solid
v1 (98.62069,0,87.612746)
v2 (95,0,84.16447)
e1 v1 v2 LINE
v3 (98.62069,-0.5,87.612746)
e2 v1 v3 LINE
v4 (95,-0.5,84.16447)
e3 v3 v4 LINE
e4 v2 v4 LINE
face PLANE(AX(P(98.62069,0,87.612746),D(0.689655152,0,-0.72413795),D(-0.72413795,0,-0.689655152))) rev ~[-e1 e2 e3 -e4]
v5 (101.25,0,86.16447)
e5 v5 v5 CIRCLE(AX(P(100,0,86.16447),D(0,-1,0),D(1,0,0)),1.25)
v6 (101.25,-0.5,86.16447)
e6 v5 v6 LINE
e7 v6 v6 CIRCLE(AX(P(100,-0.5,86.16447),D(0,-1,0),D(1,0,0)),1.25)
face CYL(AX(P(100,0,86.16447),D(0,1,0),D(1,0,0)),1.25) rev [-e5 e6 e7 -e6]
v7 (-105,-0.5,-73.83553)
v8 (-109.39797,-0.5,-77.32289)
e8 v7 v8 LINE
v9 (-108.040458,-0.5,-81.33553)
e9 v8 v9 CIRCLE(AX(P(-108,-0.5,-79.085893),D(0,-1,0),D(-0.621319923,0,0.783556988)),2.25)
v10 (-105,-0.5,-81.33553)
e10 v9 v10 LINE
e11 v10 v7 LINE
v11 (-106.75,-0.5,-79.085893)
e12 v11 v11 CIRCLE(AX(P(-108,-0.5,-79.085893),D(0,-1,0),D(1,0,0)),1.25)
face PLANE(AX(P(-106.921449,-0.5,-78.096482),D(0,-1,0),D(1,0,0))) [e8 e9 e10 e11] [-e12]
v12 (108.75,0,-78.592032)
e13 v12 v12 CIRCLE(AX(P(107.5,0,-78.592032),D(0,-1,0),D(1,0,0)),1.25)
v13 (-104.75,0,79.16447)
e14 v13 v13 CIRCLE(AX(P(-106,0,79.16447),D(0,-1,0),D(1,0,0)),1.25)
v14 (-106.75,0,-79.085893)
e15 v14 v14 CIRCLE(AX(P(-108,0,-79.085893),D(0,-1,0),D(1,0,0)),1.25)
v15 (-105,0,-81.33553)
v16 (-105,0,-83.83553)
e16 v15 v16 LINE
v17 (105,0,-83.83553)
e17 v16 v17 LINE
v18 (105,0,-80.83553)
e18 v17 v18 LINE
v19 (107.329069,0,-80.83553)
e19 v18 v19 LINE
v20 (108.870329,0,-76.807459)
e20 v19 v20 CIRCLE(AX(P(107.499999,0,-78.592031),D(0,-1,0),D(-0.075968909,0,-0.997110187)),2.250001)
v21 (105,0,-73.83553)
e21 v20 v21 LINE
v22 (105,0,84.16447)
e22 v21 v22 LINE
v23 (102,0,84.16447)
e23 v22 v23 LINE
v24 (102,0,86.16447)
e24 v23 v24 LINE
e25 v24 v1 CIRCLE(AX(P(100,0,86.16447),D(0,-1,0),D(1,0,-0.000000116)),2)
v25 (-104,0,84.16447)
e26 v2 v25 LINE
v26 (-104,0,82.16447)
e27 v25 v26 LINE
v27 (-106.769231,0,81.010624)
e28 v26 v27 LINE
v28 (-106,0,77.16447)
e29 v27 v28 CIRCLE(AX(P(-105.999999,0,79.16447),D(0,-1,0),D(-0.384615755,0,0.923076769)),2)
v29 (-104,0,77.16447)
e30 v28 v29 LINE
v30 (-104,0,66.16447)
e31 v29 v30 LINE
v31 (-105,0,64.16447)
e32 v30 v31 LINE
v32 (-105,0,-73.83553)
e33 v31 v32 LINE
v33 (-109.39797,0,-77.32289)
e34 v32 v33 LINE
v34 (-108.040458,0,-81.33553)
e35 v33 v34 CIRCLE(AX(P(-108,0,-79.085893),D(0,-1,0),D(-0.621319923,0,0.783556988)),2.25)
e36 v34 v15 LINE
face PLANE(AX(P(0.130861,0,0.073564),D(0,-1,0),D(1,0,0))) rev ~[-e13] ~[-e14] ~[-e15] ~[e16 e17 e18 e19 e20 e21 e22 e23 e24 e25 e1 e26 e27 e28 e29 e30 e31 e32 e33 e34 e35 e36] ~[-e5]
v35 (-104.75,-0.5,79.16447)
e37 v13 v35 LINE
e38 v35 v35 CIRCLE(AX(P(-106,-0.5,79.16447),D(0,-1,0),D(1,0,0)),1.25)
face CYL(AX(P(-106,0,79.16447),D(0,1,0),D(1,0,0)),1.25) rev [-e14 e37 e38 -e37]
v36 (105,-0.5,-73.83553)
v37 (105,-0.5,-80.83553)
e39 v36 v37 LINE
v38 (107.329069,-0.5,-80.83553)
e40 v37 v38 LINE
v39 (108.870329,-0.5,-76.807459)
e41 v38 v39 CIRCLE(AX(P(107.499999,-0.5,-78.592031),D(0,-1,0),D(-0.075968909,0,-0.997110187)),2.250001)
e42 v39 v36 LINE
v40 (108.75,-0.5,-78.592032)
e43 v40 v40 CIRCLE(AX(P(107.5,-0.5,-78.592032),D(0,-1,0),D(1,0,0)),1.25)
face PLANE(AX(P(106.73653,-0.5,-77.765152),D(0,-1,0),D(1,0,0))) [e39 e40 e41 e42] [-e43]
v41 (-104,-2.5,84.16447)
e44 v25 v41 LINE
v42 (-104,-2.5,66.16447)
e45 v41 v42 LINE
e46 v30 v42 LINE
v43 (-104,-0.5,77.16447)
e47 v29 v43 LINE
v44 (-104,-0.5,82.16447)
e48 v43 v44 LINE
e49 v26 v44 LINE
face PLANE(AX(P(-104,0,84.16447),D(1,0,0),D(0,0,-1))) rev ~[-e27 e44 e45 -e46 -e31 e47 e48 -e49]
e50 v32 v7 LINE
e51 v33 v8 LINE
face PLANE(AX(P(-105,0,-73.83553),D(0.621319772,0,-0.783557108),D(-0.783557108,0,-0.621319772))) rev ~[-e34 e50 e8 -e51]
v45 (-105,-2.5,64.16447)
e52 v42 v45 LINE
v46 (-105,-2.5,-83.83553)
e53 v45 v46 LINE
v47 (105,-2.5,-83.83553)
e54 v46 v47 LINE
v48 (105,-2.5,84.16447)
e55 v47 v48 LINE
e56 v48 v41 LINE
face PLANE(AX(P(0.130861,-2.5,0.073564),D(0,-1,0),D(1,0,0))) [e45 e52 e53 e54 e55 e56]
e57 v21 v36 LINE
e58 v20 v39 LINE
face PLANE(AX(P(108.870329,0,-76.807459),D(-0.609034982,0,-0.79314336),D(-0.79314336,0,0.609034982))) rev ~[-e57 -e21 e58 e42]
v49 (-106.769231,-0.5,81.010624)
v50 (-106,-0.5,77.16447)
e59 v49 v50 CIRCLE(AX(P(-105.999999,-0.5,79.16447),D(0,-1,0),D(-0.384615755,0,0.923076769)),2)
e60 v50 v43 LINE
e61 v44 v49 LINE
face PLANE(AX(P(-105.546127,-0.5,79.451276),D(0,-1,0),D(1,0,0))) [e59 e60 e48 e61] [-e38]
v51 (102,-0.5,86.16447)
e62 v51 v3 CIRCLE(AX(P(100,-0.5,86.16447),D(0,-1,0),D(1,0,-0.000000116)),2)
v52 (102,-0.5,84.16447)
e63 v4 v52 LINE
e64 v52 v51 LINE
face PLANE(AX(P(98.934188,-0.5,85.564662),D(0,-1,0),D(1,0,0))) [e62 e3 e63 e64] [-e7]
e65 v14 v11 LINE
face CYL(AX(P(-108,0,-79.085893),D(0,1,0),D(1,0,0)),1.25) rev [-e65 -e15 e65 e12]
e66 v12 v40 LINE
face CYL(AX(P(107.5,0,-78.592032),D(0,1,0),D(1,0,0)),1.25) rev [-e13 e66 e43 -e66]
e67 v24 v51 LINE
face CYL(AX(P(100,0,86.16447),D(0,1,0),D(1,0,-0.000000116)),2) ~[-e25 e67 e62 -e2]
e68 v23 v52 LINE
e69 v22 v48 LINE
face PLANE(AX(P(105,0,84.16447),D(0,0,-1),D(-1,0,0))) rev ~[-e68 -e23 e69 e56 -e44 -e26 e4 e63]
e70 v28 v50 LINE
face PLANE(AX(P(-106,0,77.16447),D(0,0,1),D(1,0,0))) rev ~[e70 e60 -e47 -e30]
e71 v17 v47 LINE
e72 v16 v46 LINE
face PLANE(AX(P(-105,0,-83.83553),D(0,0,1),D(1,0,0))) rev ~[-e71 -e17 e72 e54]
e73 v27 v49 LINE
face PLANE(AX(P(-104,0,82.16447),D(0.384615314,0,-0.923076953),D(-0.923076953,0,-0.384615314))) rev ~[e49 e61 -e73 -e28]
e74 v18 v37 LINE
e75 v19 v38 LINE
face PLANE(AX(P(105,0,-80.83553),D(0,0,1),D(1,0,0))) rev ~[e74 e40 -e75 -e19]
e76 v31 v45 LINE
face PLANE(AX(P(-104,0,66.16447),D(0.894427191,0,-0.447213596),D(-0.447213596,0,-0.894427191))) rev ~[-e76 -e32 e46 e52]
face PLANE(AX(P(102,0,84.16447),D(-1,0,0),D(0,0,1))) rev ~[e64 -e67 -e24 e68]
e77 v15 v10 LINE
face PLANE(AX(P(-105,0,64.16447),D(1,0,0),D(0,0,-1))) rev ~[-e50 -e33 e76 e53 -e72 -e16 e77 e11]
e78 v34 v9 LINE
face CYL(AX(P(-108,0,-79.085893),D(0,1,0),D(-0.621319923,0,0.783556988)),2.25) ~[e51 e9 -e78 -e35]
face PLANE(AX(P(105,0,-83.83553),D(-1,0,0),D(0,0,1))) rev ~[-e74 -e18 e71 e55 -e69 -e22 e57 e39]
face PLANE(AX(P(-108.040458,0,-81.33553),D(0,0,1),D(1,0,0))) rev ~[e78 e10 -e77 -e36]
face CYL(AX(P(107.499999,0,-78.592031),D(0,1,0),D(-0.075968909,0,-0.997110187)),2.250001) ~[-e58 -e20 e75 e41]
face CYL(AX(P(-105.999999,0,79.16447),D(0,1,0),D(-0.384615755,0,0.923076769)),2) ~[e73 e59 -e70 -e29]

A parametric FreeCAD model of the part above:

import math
import FreeCAD as App
import Part
import Sketcher
from FreeCAD import Vector

doc = App.newDocument("Part")
params = doc.addObject("Spreadsheet::Sheet", "Params")
for row, (alias, value) in enumerate([
    ("sketch1_width", "210 mm"),
    ("sketch1_width2", "209 mm"),
    ("sketch1_height", "168 mm"),
    ("sketch1_height2", "18 mm"),
    ("sketch1_height3", "148 mm"),
    ("pad1_length", "2.5 mm"),
    ("sketch2_radius", "2 mm"),
    ("sketch2_diameter", "2.5 mm"),
    ("sketch2_width", "7 mm"),
    ("sketch2_width2", "2 mm"),
    ("sketch2_height", "5 mm"),
    ("pad2_length", "0.5 mm"),
    ("sketch3_width", "200 mm"),
    ("sketch3_height", "151 mm"),
    ("pad3_length", "0.1 mm"),
], start=1):
    params.set(f"A{row}", alias)
    params.set(f"B{row}", "=" + value)
    params.setAlias(f"B{row}", alias)

body = doc.addObject("PartDesign::Body", "Body")

sketch1 = body.newObject("Sketcher::SketchObject", "Sketch")
sketch1.AttachmentSupport = (doc.getObject("XZ_Plane"), [""])
sketch1.MapMode = "FlatFace"
sketch1.addGeometry(Part.LineSegment(Vector(-105, -83.8, 0), Vector(105, -83.8, 0)), False)
sketch1.addGeometry(Part.LineSegment(Vector(105, -83.8, 0), Vector(105, 84.2, 0)), False)
sketch1.addGeometry(Part.LineSegment(Vector(105, 84.2, 0), Vector(-104, 84.2, 0)), False)
sketch1.addGeometry(Part.LineSegment(Vector(-104, 84.2, 0), Vector(-104, 66.2, 0)), False)
sketch1.addGeometry(Part.LineSegment(Vector(-104, 66.2, 0), Vector(-105, 64.2, 0)), False)
sketch1.addGeometry(Part.LineSegment(Vector(-105, 64.2, 0), Vector(-105, -83.8, 0)), False)
sketch1.addConstraint(Sketcher.Constraint("Coincident", 0, 2, 1, 1))
sketch1.addConstraint(Sketcher.Constraint("Coincident", 1, 2, 2, 1))
sketch1.addConstraint(Sketcher.Constraint("Coincident", 2, 2, 3, 1))
sketch1.addConstraint(Sketcher.Constraint("Coincident", 3, 2, 4, 1))
sketch1.addConstraint(Sketcher.Constraint("Coincident", 4, 2, 5, 1))
sketch1.addConstraint(Sketcher.Constraint("Coincident", 5, 2, 0, 1))
sketch1.addConstraint(Sketcher.Constraint("Horizontal", 0))
sketch1.addConstraint(Sketcher.Constraint("Vertical", 1))
sketch1.addConstraint(Sketcher.Constraint("Horizontal", 2))
sketch1.addConstraint(Sketcher.Constraint("Vertical", 3))
sketch1.addConstraint(Sketcher.Constraint("Vertical", 5))
sketch1.addConstraint(Sketcher.Constraint("DistanceX", 0, 1, 0, 2, 210.0))
sketch1.addConstraint(Sketcher.Constraint("DistanceX", 2, 2, 2, 1, 209.0))
sketch1.addConstraint(Sketcher.Constraint("DistanceY", 1, 1, 1, 2, 168.0))
sketch1.addConstraint(Sketcher.Constraint("DistanceY", 3, 2, 3, 1, 18.0))
sketch1.addConstraint(Sketcher.Constraint("DistanceY", 5, 2, 5, 1, 148.0))
sketch1.addConstraint(Sketcher.Constraint("DistanceX", -1, 1, 0, 2, 105.0))
sketch1.addConstraint(Sketcher.Constraint("DistanceY", 0, 2, -1, 1, 83.83553))
sketch1.setExpression("Constraints[11]", "Params.sketch1_width")
sketch1.setExpression("Constraints[12]", "Params.sketch1_width2")
sketch1.setExpression("Constraints[13]", "Params.sketch1_height")
sketch1.setExpression("Constraints[14]", "Params.sketch1_height2")
sketch1.setExpression("Constraints[15]", "Params.sketch1_height3")
pad1 = body.newObject("PartDesign::Pad", "Pad")
pad1.Profile = sketch1
pad1.setExpression("Length", "Params.pad1_length")

sketch2 = body.newObject("Sketcher::SketchObject", "Sketch001")
sketch2.AttachmentSupport = (doc.getObject("XZ_Plane"), [""])
sketch2.MapMode = "FlatFace"
sketch2.addGeometry(Part.LineSegment(Vector(95, 84.2, 0), Vector(102, 84.2, 0)), False)
sketch2.addGeometry(Part.LineSegment(Vector(102, 84.2, 0), Vector(102, 86.2, 0)), False)
sketch2.addGeometry(Part.ArcOfCircle(Part.Circle(Vector(100, 86.2, 0), Vector(0, 0, 1), 2), math.radians(0), math.radians(134)), False)
sketch2.addGeometry(Part.LineSegment(Vector(98.6, 87.6, 0), Vector(95, 84.2, 0)), False)
sketch2.addGeometry(Part.Circle(Vector(100, 86.2, 0), Vector(0, 0, 1), 1.2), False)
sketch2.addGeometry(Part.LineSegment(Vector(-106, 77.2, 0), Vector(-104, 77.2, 0)), False)
sketch2.addGeometry(Part.LineSegment(Vector(-104, 77.2, 0), Vector(-104, 82.2, 0)), False)
sketch2.addGeometry(Part.LineSegment(Vector(-104, 82.2, 0), Vector(-106.8, 81, 0)), False)
sketch2.addGeometry(Part.ArcOfCircle(Part.Circle(Vector(-106, 79.2, 0), Vector(0, 0, 1), 2), math.radians(113), math.radians(270)), False)
sketch2.addGeometry(Part.Circle(Vector(-106, 79.2, 0), Vector(0, 0, 1), 1.2), False)
sketch2.addGeometry(Part.LineSegment(Vector(-108, -81.3, 0), Vector(-105, -81.3, 0)), False)
sketch2.addGeometry(Part.LineSegment(Vector(-105, -81.3, 0), Vector(-105, -73.8, 0)), False)
sketch2.addGeometry(Part.LineSegment(Vector(-105, -73.8, 0), Vector(-109.4, -77.3, 0)), False)
sketch2.addGeometry(Part.ArcOfCircle(Part.Circle(Vector(-108, -79.1, 0), Vector(0, 0, 1), 2.3), math.radians(128), math.radians(269)), False)
sketch2.addGeometry(Part.Circle(Vector(-108, -79.1, 0), Vector(0, 0, 1), 1.2), False)
sketch2.addGeometry(Part.LineSegment(Vector(105, -73.8, 0), Vector(105, -80.8, 0)), False)
sketch2.addGeometry(Part.LineSegment(Vector(105, -80.8, 0), Vector(107.3, -80.8, 0)), False)
sketch2.addGeometry(Part.ArcOfCircle(Part.Circle(Vector(107.5, -78.6, 0), Vector(0, 0, 1), 2.3), math.radians(-94), math.radians(52)), False)
sketch2.addGeometry(Part.LineSegment(Vector(108.9, -76.8, 0), Vector(105, -73.8, 0)), False)
sketch2.addGeometry(Part.Circle(Vector(107.5, -78.6, 0), Vector(0, 0, 1), 1.2), False)
sketch2.addConstraint(Sketcher.Constraint("Coincident", 0, 2, 1, 1))
sketch2.addConstraint(Sketcher.Constraint("Tangent", 1, 2, 2, 1))
sketch2.addConstraint(Sketcher.Constraint("Tangent", 2, 2, 3, 1))
sketch2.addConstraint(Sketcher.Constraint("Coincident", 3, 2, 0, 1))
sketch2.addConstraint(Sketcher.Constraint("Coincident", 5, 2, 6, 1))
sketch2.addConstraint(Sketcher.Constraint("Coincident", 6, 2, 7, 1))
sketch2.addConstraint(Sketcher.Constraint("Tangent", 7, 2, 8, 1))
sketch2.addConstraint(Sketcher.Constraint("Tangent", 8, 2, 5, 1))
sketch2.addConstraint(Sketcher.Constraint("Coincident", 10, 2, 11, 1))
sketch2.addConstraint(Sketcher.Constraint("Coincident", 11, 2, 12, 1))
sketch2.addConstraint(Sketcher.Constraint("Tangent", 12, 2, 13, 1))
sketch2.addConstraint(Sketcher.Constraint("Coincident", 13, 2, 10, 1))
sketch2.addConstraint(Sketcher.Constraint("Coincident", 15, 2, 16, 1))
sketch2.addConstraint(Sketcher.Constraint("Coincident", 16, 2, 17, 1))
sketch2.addConstraint(Sketcher.Constraint("Tangent", 17, 2, 18, 1))
sketch2.addConstraint(Sketcher.Constraint("Coincident", 18, 2, 15, 1))
sketch2.addConstraint(Sketcher.Constraint("Horizontal", 0))
sketch2.addConstraint(Sketcher.Constraint("Vertical", 1))
sketch2.addConstraint(Sketcher.Constraint("Horizontal", 5))
sketch2.addConstraint(Sketcher.Constraint("Vertical", 6))
sketch2.addConstraint(Sketcher.Constraint("Horizontal", 10))
sketch2.addConstraint(Sketcher.Constraint("Vertical", 11))
sketch2.addConstraint(Sketcher.Constraint("Vertical", 15))
sketch2.addConstraint(Sketcher.Constraint("Horizontal", 16))
sketch2.addConstraint(Sketcher.Constraint("Coincident", 4, 3, 2, 3))
sketch2.addConstraint(Sketcher.Constraint("Coincident", 9, 3, 8, 3))
sketch2.addConstraint(Sketcher.Constraint("Coincident", 14, 3, 13, 3))
sketch2.addConstraint(Sketcher.Constraint("Coincident", 19, 3, 17, 3))
sketch2.addConstraint(Sketcher.Constraint("Equal", 2, 8))
sketch2.addConstraint(Sketcher.Constraint("Equal", 4, 9))
sketch2.addConstraint(Sketcher.Constraint("Equal", 9, 14))
sketch2.addConstraint(Sketcher.Constraint("Equal", 13, 17))
sketch2.addConstraint(Sketcher.Constraint("Equal", 14, 19))
sketch2.addConstraint(Sketcher.Constraint("Symmetric", 11, 2, 18, 2, -2))
sketch2.addConstraint(Sketcher.Constraint("Equal", 5, 1))
sketch2.addConstraint(Sketcher.Constraint("Equal", 0, 15))
sketch2.addConstraint(Sketcher.Constraint("Radius", 2, 2.0))
sketch2.addConstraint(Sketcher.Constraint("Diameter", 4, 2.5))
sketch2.addConstraint(Sketcher.Constraint("DistanceX", 0, 1, 0, 2, 7.0))
sketch2.addConstraint(Sketcher.Constraint("DistanceX", 5, 1, 5, 2, 2.0))
sketch2.addConstraint(Sketcher.Constraint("DistanceY", 6, 1, 6, 2, 5.0))
sketch2.addConstraint(Sketcher.Constraint("Radius", 13, 2.25))
sketch2.addConstraint(Sketcher.Constraint("DistanceY", 11, 1, 11, 2, 7.5))
sketch2.addConstraint(Sketcher.Constraint("DistanceX", -1, 1, 2, 3, 100.0))
sketch2.addConstraint(Sketcher.Constraint("DistanceX", 8, 3, -1, 1, 105.999999))
sketch2.addConstraint(Sketcher.Constraint("DistanceX", 13, 3, -1, 1, 108.0))
sketch2.addConstraint(Sketcher.Constraint("DistanceX", 10, 2, -1, 1, 105.0))
sketch2.addConstraint(Sketcher.Constraint("DistanceY", 8, 3, 4, 3, 7.0))
sketch2.addConstraint(Sketcher.Constraint("DistanceY", 11, 2, 5, 2, 151.0))
sketch2.addConstraint(Sketcher.Constraint("DistanceX", -1, 1, 17, 3, 107.499999))
sketch2.addConstraint(Sketcher.Constraint("DistanceX", 10, 1, 10, 2, 3.040458))
sketch2.addConstraint(Sketcher.Constraint("DistanceX", 16, 1, 16, 2, 2.329069))
sketch2.addConstraint(Sketcher.Constraint("DistanceY", -1, 1, 2, 3, 86.16447))
sketch2.setExpression("Constraints[36]", "Params.sketch2_radius")
sketch2.setExpression("Constraints[37]", "Params.sketch2_diameter")
sketch2.setExpression("Constraints[38]", "Params.sketch2_width")
sketch2.setExpression("Constraints[39]", "Params.sketch2_width2")
sketch2.setExpression("Constraints[40]", "Params.sketch2_height")
pad2 = body.newObject("PartDesign::Pad", "Pad001")
pad2.Profile = sketch2
pad2.setExpression("Length", "Params.pad2_length")

sketch3 = body.newObject("Sketcher::SketchObject", "Sketch002")
sketch3.AttachmentSupport = (doc.getObject("XZ_Plane"), [""])
sketch3.MapMode = "FlatFace"
sketch3.addGeometry(Part.LineSegment(Vector(-101, 76, 0), Vector(-101, -75, 0)), False)
sketch3.addGeometry(Part.LineSegment(Vector(-101, -75, 0), Vector(99, -75, 0)), False)
sketch3.addGeometry(Part.LineSegment(Vector(99, -75, 0), Vector(99, 76, 0)), False)
sketch3.addGeometry(Part.LineSegment(Vector(99, 76, 0), Vector(-101, 76, 0)), False)
sketch3.addConstraint(Sketcher.Constraint("Coincident", 0, 2, 1, 1))
sketch3.addConstraint(Sketcher.Constraint("Coincident", 1, 2, 2, 1))
sketch3.addConstraint(Sketcher.Constraint("Coincident", 2, 2, 3, 1))
sketch3.addConstraint(Sketcher.Constraint("Coincident", 3, 2, 0, 1))
sketch3.addConstraint(Sketcher.Constraint("Vertical", 0))
sketch3.addConstraint(Sketcher.Constraint("Horizontal", 1))
sketch3.addConstraint(Sketcher.Constraint("Vertical", 2))
sketch3.addConstraint(Sketcher.Constraint("Horizontal", 3))
sketch3.addConstraint(Sketcher.Constraint("DistanceX", 1, 1, 1, 2, 200.0))
sketch3.addConstraint(Sketcher.Constraint("DistanceY", 0, 2, 0, 1, 151.0))
sketch3.addConstraint(Sketcher.Constraint("DistanceX", 0, 2, -1, 1, 101.0))
sketch3.addConstraint(Sketcher.Constraint("DistanceY", 0, 2, -1, 1, 74.83553))
sketch3.setExpression("Constraints[8]", "Params.sketch3_width")
sketch3.setExpression("Constraints[9]", "Params.sketch3_height")
pad3 = body.newObject("PartDesign::Pad", "Pad002")
pad3.Profile = sketch3
pad3.setExpression("Length", "Params.pad3_length")

doc.recompute()
